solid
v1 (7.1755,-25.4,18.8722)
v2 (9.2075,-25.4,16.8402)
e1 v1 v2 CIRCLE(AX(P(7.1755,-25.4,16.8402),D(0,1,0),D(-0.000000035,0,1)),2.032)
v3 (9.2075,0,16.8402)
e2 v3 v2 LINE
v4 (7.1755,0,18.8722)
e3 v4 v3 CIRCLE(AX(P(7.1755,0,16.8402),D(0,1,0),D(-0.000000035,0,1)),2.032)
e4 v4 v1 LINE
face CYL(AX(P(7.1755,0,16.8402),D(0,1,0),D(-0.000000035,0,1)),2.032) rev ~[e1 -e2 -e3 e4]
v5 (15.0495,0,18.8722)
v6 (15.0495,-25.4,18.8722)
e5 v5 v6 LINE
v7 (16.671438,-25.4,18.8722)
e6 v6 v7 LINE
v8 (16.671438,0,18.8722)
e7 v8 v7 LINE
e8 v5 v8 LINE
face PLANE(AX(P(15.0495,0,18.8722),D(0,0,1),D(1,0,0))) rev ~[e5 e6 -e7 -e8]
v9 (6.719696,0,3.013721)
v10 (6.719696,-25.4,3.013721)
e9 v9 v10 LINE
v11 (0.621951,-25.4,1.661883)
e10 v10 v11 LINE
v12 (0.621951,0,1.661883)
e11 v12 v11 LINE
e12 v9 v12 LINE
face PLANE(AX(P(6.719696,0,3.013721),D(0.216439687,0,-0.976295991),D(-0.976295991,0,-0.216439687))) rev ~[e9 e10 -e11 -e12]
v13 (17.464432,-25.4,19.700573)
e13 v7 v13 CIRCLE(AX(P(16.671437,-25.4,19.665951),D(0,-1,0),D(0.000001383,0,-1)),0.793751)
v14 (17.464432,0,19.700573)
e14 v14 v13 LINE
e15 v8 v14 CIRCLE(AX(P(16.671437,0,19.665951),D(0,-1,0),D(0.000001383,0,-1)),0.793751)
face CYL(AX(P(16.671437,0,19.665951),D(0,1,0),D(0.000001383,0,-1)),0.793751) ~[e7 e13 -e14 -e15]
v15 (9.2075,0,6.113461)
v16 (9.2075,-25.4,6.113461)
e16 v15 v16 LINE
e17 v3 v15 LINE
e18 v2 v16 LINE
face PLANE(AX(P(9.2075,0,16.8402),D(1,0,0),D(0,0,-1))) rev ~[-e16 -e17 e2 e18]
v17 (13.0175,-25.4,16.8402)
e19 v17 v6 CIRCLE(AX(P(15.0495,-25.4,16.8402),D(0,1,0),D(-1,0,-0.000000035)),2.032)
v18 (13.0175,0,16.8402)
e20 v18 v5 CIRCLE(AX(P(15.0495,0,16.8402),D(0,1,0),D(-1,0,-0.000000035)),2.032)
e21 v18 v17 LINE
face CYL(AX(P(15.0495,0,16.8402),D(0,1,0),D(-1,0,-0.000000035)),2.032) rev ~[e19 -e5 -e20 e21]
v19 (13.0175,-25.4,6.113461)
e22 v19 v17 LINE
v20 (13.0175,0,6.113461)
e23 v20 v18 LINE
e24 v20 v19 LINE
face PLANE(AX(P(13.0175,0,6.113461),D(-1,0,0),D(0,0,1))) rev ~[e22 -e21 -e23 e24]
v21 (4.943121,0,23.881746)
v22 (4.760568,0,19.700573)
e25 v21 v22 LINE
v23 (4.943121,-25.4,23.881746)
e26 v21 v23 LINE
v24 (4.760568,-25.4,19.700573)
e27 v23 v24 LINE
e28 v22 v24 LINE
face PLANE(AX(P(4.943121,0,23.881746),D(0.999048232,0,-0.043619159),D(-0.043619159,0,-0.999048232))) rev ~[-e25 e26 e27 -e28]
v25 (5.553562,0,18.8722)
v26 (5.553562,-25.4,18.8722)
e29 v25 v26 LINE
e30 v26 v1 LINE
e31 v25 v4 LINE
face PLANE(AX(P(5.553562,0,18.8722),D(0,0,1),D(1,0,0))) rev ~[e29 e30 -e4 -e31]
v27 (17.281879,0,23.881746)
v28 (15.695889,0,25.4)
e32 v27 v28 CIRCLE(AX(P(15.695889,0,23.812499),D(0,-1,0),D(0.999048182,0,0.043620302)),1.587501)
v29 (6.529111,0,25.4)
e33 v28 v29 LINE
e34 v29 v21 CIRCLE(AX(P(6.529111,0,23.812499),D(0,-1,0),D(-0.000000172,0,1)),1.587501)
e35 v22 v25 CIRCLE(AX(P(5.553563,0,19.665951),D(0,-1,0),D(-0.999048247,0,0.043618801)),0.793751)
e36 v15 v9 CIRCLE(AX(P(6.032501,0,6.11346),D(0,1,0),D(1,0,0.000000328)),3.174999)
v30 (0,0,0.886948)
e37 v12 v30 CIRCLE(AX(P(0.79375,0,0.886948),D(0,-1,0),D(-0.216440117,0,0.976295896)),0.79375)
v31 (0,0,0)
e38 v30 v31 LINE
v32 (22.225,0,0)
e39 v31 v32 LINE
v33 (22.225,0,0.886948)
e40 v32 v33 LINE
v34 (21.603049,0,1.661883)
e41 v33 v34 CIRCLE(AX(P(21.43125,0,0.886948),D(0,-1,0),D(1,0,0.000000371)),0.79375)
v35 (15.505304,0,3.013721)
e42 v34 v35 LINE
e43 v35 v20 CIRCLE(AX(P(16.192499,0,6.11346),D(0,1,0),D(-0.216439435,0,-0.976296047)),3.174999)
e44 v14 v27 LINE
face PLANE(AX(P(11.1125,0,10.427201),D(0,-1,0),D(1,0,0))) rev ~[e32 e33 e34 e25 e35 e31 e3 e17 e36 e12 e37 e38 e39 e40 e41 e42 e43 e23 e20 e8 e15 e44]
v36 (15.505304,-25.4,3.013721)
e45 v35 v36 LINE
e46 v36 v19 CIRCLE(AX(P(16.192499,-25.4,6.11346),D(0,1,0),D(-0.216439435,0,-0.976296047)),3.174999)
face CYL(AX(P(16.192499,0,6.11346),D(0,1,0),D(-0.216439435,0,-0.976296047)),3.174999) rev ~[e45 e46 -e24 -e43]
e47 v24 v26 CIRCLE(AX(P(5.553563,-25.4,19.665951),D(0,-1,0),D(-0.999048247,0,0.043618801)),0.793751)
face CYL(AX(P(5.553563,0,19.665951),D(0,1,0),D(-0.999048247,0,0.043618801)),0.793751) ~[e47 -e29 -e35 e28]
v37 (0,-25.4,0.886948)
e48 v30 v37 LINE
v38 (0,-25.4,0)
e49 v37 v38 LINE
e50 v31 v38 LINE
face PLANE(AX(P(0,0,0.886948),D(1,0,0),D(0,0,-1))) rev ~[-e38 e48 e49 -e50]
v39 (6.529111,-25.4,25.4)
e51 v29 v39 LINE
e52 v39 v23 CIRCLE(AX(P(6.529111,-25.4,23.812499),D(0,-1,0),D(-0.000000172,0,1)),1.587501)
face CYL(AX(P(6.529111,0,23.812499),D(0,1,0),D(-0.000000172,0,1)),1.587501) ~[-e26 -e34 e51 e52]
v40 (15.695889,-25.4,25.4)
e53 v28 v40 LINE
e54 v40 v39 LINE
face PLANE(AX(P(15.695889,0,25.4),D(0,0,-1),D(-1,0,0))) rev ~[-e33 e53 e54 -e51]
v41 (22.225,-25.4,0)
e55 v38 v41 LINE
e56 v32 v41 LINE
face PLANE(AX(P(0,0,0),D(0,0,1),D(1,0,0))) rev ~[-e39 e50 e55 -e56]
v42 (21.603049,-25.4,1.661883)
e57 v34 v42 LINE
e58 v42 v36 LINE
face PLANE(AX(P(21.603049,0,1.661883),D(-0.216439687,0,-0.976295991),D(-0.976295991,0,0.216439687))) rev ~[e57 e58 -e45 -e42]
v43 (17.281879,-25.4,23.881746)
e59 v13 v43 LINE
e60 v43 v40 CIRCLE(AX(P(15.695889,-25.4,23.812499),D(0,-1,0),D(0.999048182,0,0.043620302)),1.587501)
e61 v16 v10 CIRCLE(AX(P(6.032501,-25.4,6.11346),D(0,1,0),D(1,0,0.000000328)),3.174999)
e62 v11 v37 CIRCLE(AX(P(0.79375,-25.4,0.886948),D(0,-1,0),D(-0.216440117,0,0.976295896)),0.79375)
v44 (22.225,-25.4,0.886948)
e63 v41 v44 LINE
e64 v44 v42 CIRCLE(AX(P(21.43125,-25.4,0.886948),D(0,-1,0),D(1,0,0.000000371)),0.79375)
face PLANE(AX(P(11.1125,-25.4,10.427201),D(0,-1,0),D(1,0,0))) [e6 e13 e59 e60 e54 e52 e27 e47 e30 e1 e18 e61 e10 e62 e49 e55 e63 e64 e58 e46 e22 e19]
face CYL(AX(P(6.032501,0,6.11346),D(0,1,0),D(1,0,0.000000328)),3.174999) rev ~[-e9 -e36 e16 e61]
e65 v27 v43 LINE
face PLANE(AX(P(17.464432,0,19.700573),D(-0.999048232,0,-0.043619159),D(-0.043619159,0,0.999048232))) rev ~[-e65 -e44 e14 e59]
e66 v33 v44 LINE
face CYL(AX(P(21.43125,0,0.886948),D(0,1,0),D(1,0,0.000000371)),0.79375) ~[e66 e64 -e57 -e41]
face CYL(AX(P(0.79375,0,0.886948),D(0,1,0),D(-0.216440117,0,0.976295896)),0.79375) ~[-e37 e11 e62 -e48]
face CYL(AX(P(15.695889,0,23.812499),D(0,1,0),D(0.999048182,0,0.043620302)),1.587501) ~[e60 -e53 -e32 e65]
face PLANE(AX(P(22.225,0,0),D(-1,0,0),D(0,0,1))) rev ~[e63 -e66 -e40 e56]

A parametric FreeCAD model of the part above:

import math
import FreeCAD as App
import Part
import Sketcher
from FreeCAD import Vector
Q = App.Units.Quantity

doc = App.newDocument("Part")
body = doc.addObject("PartDesign::Body", "Body")

# Sketch on XZ plane
sketch1 = body.newObject("Sketcher::SketchObject", "Sketch")
sketch1.AttachmentSupport = (doc.getObject("XZ_Plane"), [""])
sketch1.MapMode = "FlatFace"
sketch1.addGeometry(Part.LineSegment(Vector(0, 0.9, 0), Vector(0, 0, 0)), False)
sketch1.addGeometry(Part.LineSegment(Vector(0, 0, 0), Vector(22.2, 0, 0)), False)
sketch1.addGeometry(Part.LineSegment(Vector(22.2, 0, 0), Vector(22.2, 0.9, 0)), False)
sketch1.addGeometry(Part.ArcOfCircle(Part.Circle(Vector(21.4, 0.9, 0), Vector(0, 0, 1), 0.8), math.radians(0), math.radians(77)), False)
sketch1.addGeometry(Part.LineSegment(Vector(21.6, 1.7, 0), Vector(15.5, 3, 0)), False)
sketch1.addGeometry(Part.ArcOfCircle(Part.Circle(Vector(16.2, 6.1, 0), Vector(0, 0, 1), 3.2), math.radians(180), math.radians(258)), False)
sketch1.addGeometry(Part.LineSegment(Vector(13, 6.1, 0), Vector(13, 16.8, 0)), False)
sketch1.addGeometry(Part.ArcOfCircle(Part.Circle(Vector(15, 16.8, 0), Vector(0, 0, 1), 2), math.radians(90), math.radians(180)), False)
sketch1.addGeometry(Part.LineSegment(Vector(15, 18.9, 0), Vector(16.7, 18.9, 0)), False)
sketch1.addGeometry(Part.ArcOfCircle(Part.Circle(Vector(16.7, 19.7, 0), Vector(0, 0, 1), 0.8), math.radians(-90), math.radians(2)), False)
sketch1.addGeometry(Part.LineSegment(Vector(17.5, 19.7, 0), Vector(17.3, 23.9, 0)), False)
sketch1.addGeometry(Part.ArcOfCircle(Part.Circle(Vector(15.7, 23.8, 0), Vector(0, 0, 1), 1.6), math.radians(3), math.radians(90)), False)
sketch1.addGeometry(Part.LineSegment(Vector(15.7, 25.4, 0), Vector(6.5, 25.4, 0)), False)
sketch1.addGeometry(Part.ArcOfCircle(Part.Circle(Vector(6.5, 23.8, 0), Vector(0, 0, 1), 1.6), math.radians(90), math.radians(177)), False)
sketch1.addGeometry(Part.LineSegment(Vector(4.9, 23.9, 0), Vector(4.8, 19.7, 0)), False)
sketch1.addGeometry(Part.ArcOfCircle(Part.Circle(Vector(5.6, 19.7, 0), Vector(0, 0, 1), 0.8), math.radians(178), math.radians(270)), False)
sketch1.addGeometry(Part.LineSegment(Vector(5.6, 18.9, 0), Vector(7.2, 18.9, 0)), False)
sketch1.addGeometry(Part.ArcOfCircle(Part.Circle(Vector(7.2, 16.8, 0), Vector(0, 0, 1), 2), math.radians(0), math.radians(90)), False)
sketch1.addGeometry(Part.LineSegment(Vector(9.2, 16.8, 0), Vector(9.2, 6.1, 0)), False)
sketch1.addGeometry(Part.ArcOfCircle(Part.Circle(Vector(6, 6.1, 0), Vector(0, 0, 1), 3.2), math.radians(-78), math.radians(0)), False)
sketch1.addGeometry(Part.LineSegment(Vector(6.7, 3, 0), Vector(0.6, 1.7, 0)), False)
sketch1.addGeometry(Part.ArcOfCircle(Part.Circle(Vector(0.8, 0.9, 0), Vector(0, 0, 1), 0.8), math.radians(103), math.radians(180)), False)
sketch1.addConstraint(Sketcher.Constraint("Coincident", 0, 2, 1, 1))
sketch1.addConstraint(Sketcher.Constraint("Coincident", 1, 2, 2, 1))
sketch1.addConstraint(Sketcher.Constraint("Tangent", 2, 2, 3, 1))
sketch1.addConstraint(Sketcher.Constraint("Tangent", 3, 2, 4, 1))
sketch1.addConstraint(Sketcher.Constraint("Tangent", 4, 2, 5, 2))
sketch1.addConstraint(Sketcher.Constraint("Tangent", 5, 1, 6, 1))
sketch1.addConstraint(Sketcher.Constraint("Tangent", 6, 2, 7, 2))
sketch1.addConstraint(Sketcher.Constraint("Tangent", 7, 1, 8, 1))
sketch1.addConstraint(Sketcher.Constraint("Tangent", 8, 2, 9, 1))
sketch1.addConstraint(Sketcher.Constraint("Tangent", 9, 2, 10, 1))
sketch1.addConstraint(Sketcher.Constraint("Tangent", 10, 2, 11, 1))
sketch1.addConstraint(Sketcher.Constraint("Tangent", 11, 2, 12, 1))
sketch1.addConstraint(Sketcher.Constraint("Tangent", 12, 2, 13, 1))
sketch1.addConstraint(Sketcher.Constraint("Tangent", 13, 2, 14, 1))
sketch1.addConstraint(Sketcher.Constraint("Tangent", 14, 2, 15, 1))
sketch1.addConstraint(Sketcher.Constraint("Tangent", 15, 2, 16, 1))
sketch1.addConstraint(Sketcher.Constraint("Tangent", 16, 2, 17, 2))
sketch1.addConstraint(Sketcher.Constraint("Tangent", 17, 1, 18, 1))
sketch1.addConstraint(Sketcher.Constraint("Tangent", 18, 2, 19, 2))
sketch1.addConstraint(Sketcher.Constraint("Tangent", 19, 1, 20, 1))
sketch1.addConstraint(Sketcher.Constraint("Tangent", 20, 2, 21, 1))
sketch1.addConstraint(Sketcher.Constraint("Tangent", 21, 2, 0, 1))
sketch1.addConstraint(Sketcher.Constraint("Vertical", 0))
sketch1.addConstraint(Sketcher.Constraint("Horizontal", 1))
sketch1.addConstraint(Sketcher.Constraint("Vertical", 2))
sketch1.addConstraint(Sketcher.Constraint("Vertical", 6))
sketch1.addConstraint(Sketcher.Constraint("Horizontal", 8))
sketch1.addConstraint(Sketcher.Constraint("Horizontal", 12))
sketch1.addConstraint(Sketcher.Constraint("Horizontal", 16))
sketch1.addConstraint(Sketcher.Constraint("Vertical", 18))
sketch1.addConstraint(Sketcher.Constraint("Coincident", 0, 2, -1, 1))
sketch1.addConstraint(Sketcher.Constraint("Equal", 3, 9))
sketch1.addConstraint(Sketcher.Constraint("Equal", 11, 13))
sketch1.addConstraint(Sketcher.Constraint("Equal", 9, 15))
sketch1.addConstraint(Sketcher.Constraint("Equal", 7, 17))
sketch1.addConstraint(Sketcher.Constraint("Equal", 5, 19))
sketch1.addConstraint(Sketcher.Constraint("Equal", 15, 21))
sketch1.addConstraint(Sketcher.Constraint("Horizontal", 9, 3, 15, 3))
sketch1.addConstraint(Sketcher.Constraint("Horizontal", 5, 3, 19, 3))
sketch1.addConstraint(Sketcher.Constraint("Horizontal", 3, 3, 21, 3))
sketch1.addConstraint(Sketcher.Constraint("Horizontal", 10, 2, 13, 2))
sketch1.addConstraint(Sketcher.Constraint("Horizontal", 4, 2, 19, 1))
sketch1.addConstraint(Sketcher.Constraint("Equal", 8, 16))
sketch1.addConstraint(Sketcher.Constraint("Radius", 7, Q("0.08 in")))
sketch1.addConstraint(Sketcher.Constraint("DistanceY", -1, 1, 11, 2, Q("1 in")))
sketch1.addConstraint(Sketcher.Constraint("Radius", 3, Q("0.03125 in")))
sketch1.addConstraint(Sketcher.Constraint("Radius", 5, Q("0.125 in")))
sketch1.addConstraint(Sketcher.Constraint("Radius", 11, Q("0.0625001 in")))
sketch1.addConstraint(Sketcher.Constraint("Angle", 4, Q("167.499996 deg")))
sketch1.addConstraint(Sketcher.Constraint("Angle", 10, Q("92.499987 deg")))
sketch1.addConstraint(Sketcher.Constraint("DistanceX", 19, 3, 5, 3, Q("0.3999999 in")))
sketch1.addConstraint(Sketcher.Constraint("DistanceX", 1, 1, 1, 2, Q("0.875 in")))
sketch1.addConstraint(Sketcher.Constraint("DistanceY", -1, 1, 7, 3, Q("0.663 in")))
sketch1.addConstraint(Sketcher.Constraint("DistanceX", 16, 1, 16, 2, Q("1.621938 mm")))
sketch1.addConstraint(Sketcher.Constraint("DistanceY", 6, 1, 6, 2, Q("10.726739 mm")))
pad1 = body.newObject("PartDesign::Pad", "Pad")
pad1.Profile = sketch1
pad1.Length = Q("1 in")

doc.recompute()
